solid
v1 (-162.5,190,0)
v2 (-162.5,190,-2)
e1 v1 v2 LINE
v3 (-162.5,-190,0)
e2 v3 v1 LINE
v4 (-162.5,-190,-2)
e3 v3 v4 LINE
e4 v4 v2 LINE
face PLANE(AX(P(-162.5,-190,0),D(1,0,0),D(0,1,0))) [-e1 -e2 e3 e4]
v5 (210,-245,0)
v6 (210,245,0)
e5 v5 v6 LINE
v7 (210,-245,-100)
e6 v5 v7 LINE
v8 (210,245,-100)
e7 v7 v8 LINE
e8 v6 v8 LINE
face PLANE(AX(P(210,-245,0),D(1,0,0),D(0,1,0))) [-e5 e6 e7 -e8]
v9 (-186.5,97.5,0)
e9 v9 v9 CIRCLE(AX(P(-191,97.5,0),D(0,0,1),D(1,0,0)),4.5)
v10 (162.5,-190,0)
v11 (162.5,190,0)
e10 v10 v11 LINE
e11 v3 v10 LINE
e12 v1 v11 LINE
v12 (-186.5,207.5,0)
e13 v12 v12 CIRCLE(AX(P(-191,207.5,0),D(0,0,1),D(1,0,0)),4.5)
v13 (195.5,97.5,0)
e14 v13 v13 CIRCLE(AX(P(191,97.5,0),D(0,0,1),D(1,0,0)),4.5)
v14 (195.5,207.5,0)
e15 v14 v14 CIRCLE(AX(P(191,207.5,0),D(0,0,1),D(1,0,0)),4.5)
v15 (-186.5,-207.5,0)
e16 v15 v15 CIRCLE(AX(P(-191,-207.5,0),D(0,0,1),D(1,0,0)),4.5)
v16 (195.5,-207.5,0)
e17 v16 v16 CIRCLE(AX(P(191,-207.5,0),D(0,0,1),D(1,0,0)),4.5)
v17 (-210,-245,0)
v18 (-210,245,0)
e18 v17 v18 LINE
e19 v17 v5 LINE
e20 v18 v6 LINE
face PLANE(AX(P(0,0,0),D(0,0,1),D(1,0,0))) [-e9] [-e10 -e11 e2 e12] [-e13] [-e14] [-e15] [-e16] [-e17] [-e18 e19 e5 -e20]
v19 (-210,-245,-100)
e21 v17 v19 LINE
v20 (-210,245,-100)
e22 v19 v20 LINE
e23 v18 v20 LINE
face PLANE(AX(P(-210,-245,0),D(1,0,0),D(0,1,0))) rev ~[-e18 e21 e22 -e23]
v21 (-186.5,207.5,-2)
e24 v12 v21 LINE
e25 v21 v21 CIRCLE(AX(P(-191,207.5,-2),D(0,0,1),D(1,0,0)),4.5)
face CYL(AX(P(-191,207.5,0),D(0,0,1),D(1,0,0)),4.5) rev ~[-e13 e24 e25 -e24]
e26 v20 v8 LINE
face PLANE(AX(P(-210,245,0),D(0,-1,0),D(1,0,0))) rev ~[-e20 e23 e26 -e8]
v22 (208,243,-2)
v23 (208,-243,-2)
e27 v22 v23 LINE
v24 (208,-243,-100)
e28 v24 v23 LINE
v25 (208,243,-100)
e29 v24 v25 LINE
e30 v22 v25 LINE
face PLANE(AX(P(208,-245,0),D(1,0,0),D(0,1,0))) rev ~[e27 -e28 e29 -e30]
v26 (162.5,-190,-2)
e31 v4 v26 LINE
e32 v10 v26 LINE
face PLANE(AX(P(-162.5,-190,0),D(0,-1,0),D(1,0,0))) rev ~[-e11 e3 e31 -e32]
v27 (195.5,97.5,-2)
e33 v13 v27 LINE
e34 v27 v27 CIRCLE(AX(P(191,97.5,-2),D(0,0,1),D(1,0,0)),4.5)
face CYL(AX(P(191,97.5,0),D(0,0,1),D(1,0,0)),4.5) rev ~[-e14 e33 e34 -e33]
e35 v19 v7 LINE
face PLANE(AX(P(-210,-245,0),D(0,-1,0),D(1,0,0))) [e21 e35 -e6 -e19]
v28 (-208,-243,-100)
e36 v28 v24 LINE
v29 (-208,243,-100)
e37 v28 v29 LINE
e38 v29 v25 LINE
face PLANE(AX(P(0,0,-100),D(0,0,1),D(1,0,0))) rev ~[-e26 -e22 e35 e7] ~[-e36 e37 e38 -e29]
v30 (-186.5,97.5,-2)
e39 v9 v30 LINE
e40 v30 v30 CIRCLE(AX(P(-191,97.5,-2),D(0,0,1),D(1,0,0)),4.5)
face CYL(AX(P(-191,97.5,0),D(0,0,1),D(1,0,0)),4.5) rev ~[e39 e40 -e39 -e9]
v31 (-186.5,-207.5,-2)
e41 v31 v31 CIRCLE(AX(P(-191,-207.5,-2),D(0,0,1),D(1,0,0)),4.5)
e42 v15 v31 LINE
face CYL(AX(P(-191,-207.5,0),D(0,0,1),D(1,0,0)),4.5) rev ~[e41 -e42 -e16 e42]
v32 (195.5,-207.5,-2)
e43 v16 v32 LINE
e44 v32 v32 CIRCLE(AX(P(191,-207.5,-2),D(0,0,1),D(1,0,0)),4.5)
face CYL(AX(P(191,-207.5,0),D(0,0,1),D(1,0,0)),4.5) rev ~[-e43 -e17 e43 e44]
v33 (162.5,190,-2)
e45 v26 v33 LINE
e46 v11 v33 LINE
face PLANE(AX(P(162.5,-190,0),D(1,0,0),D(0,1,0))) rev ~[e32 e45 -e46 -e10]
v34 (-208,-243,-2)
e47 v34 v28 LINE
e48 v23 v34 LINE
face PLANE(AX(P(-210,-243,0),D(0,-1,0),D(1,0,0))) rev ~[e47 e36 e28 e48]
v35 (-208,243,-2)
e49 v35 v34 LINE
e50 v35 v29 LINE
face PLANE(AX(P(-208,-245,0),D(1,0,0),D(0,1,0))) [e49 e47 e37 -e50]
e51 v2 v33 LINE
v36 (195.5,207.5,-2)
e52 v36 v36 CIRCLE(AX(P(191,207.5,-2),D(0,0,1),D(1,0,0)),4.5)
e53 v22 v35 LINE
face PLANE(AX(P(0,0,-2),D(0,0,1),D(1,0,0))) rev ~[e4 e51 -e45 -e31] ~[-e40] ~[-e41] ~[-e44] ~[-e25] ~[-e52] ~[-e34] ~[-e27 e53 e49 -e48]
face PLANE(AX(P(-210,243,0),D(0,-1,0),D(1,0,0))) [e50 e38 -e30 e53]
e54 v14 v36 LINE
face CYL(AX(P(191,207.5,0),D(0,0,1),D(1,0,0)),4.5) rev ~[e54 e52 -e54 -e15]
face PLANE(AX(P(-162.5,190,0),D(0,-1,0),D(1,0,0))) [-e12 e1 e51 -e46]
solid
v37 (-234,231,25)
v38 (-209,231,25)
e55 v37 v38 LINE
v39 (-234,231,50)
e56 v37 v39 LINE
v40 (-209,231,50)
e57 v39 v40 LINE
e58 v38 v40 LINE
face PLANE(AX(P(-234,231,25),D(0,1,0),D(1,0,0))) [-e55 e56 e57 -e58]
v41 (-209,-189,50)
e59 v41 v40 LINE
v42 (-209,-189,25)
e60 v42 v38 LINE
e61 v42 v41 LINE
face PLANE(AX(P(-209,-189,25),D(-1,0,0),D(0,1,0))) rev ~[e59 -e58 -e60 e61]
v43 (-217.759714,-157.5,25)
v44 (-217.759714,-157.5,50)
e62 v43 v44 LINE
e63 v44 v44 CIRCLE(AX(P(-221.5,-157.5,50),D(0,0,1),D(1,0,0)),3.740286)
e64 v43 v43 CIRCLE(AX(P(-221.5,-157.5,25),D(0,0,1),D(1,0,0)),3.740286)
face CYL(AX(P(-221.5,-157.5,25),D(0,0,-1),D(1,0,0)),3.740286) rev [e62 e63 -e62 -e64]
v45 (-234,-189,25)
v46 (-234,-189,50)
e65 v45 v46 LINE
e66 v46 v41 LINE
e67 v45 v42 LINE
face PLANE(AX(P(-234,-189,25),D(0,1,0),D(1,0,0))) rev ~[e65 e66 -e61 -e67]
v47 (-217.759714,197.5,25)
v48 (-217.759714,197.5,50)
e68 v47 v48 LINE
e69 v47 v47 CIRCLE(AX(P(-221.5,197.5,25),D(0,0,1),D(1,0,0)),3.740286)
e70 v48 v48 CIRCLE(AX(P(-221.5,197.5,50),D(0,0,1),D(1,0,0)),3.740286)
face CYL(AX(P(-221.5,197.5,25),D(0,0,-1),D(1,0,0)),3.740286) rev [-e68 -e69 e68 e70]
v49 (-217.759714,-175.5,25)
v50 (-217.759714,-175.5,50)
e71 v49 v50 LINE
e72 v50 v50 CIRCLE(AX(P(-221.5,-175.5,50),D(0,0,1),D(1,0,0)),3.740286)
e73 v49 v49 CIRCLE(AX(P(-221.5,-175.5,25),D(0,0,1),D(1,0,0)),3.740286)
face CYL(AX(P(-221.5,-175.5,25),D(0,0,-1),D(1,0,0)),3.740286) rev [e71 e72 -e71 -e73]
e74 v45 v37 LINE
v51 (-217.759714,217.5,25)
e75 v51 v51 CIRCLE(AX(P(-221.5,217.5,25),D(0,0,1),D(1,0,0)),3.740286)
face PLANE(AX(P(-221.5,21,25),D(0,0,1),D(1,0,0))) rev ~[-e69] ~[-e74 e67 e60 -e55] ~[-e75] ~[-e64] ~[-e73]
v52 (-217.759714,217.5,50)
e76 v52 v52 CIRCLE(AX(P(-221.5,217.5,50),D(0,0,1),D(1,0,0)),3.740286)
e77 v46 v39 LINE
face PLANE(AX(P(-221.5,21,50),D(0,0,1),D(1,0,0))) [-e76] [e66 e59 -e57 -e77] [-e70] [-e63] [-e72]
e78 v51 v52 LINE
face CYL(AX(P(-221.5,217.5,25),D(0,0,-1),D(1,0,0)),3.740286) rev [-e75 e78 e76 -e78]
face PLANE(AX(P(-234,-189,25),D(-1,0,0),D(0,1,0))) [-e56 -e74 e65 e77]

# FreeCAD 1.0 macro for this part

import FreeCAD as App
import Part
import Sketcher
Q = App.Units.Quantity


def faces_at(feature, points):
    """Names of the faces that lie closest to the given points."""
    faces = feature.Shape.Faces
    near = lambda p: min(range(len(faces)), key=lambda i: faces[i].distToShape(Part.Vertex(*p))[0])
    return sorted({f"Face{near(p) + 1}" for p in points})

doc = App.newDocument("Part")
params = doc.addObject("Spreadsheet::Sheet", "Params")
for row, (alias, value) in enumerate([
    ("sketch1_width", "420 mm"),
    ("sketch1_height", "490 mm"),
    ("pad1_length", "100 mm"),
    ("thickness_wall", "2 mm"),
    ("sketch2_width", "325 mm"),
    ("sketch2_height", "380 mm"),
    ("pocket1_length", "25 mm"),
    ("sketch3_diameter", "9 mm"),
    ("pocket2_length", "25 mm"),
    ("sketch4_width", "25 mm"),
    ("sketch4_height", "420 mm"),
    ("pad2_length", "25 mm"),
    ("pocket3_length", "25 mm"),
], start=1):
    params.set(f"A{row}", alias)
    params.set(f"B{row}", "=" + value)
    params.setAlias(f"B{row}", alias)

body = doc.addObject("PartDesign::Body", "Body")

sketch1 = body.newObject("Sketcher::SketchObject", "Sketch")
sketch1.AttachmentSupport = (doc.getObject("XY_Plane"), [""])
sketch1.MapMode = "FlatFace"
sketch1.addGeometry([
    Part.LineSegment(App.Vector(-210, 245, 0), App.Vector(-210, -245, 0)),
    Part.LineSegment(App.Vector(-210, -245, 0), App.Vector(210, -245, 0)),
    Part.LineSegment(App.Vector(210, -245, 0), App.Vector(210, 245, 0)),
    Part.LineSegment(App.Vector(210, 245, 0), App.Vector(-210, 245, 0)),
], False)
sketch1.addConstraint([
    Sketcher.Constraint("Coincident", 0, 2, 1, 1),
    Sketcher.Constraint("Coincident", 1, 2, 2, 1),
    Sketcher.Constraint("Coincident", 2, 2, 3, 1),
    Sketcher.Constraint("Coincident", 3, 2, 0, 1),
    Sketcher.Constraint("Vertical", 0),
    Sketcher.Constraint("Horizontal", 1),
    Sketcher.Constraint("Vertical", 2),
    Sketcher.Constraint("Horizontal", 3),
    Sketcher.Constraint("Symmetric", 0, 2, 2, 2, -1, 1),
    Sketcher.Constraint("DistanceX", 1, 1, 1, 2, Q("420 mm")),
    Sketcher.Constraint("DistanceY", 0, 2, 0, 1, Q("490 mm")),
])
sketch1.setExpression("Constraints[9]", "Params.sketch1_width")
sketch1.setExpression("Constraints[10]", "Params.sketch1_height")
pad1 = body.newObject("PartDesign::Pad", "Pad")
pad1.Profile = sketch1
pad1.setExpression("Length", "Params.pad1_length")
pad1.Reversed = True
doc.recompute()

thickness = body.newObject("PartDesign::Thickness", "Thickness")
thickness.Base = (pad1, faces_at(pad1, [(0, 0, -100)]))
thickness.setExpression("Value", "Params.thickness_wall")
thickness.Reversed = True
thickness.Join = "Arc"

sketch2 = body.newObject("Sketcher::SketchObject", "Sketch001")
sketch2.AttachmentSupport = (doc.getObject("XY_Plane"), [""])
sketch2.MapMode = "FlatFace"
sketch2.addGeometry([
    Part.LineSegment(App.Vector(-162, 190, 0), App.Vector(-162, -190, 0)),
    Part.LineSegment(App.Vector(-162, -190, 0), App.Vector(162, -190, 0)),
    Part.LineSegment(App.Vector(162, -190, 0), App.Vector(162, 190, 0)),
    Part.LineSegment(App.Vector(162, 190, 0), App.Vector(-162, 190, 0)),
], False)
sketch2.addConstraint([
    Sketcher.Constraint("Coincident", 0, 2, 1, 1),
    Sketcher.Constraint("Coincident", 1, 2, 2, 1),
    Sketcher.Constraint("Coincident", 2, 2, 3, 1),
    Sketcher.Constraint("Coincident", 3, 2, 0, 1),
    Sketcher.Constraint("Vertical", 0),
    Sketcher.Constraint("Horizontal", 1),
    Sketcher.Constraint("Vertical", 2),
    Sketcher.Constraint("Horizontal", 3),
    Sketcher.Constraint("Symmetric", 0, 2, 2, 2, -1, 1),
    Sketcher.Constraint("DistanceX", 1, 1, 1, 2, Q("325 mm")),
    Sketcher.Constraint("DistanceY", 0, 2, 0, 1, Q("380 mm")),
])
sketch2.setExpression("Constraints[9]", "Params.sketch2_width")
sketch2.setExpression("Constraints[10]", "Params.sketch2_height")
pocket1 = body.newObject("PartDesign::Pocket", "Pocket")
pocket1.Profile = sketch2
pocket1.setExpression("Length", "Params.pocket1_length")

sketch3 = body.newObject("Sketcher::SketchObject", "Sketch002")
sketch3.AttachmentSupport = (doc.getObject("XY_Plane"), [""])
sketch3.MapMode = "FlatFace"
sketch3.addGeometry([
    Part.Circle(App.Vector(-191, -207.5, 0), App.Vector(0, 0, 1), 4.5),
    Part.Circle(App.Vector(-191, 97.5, 0), App.Vector(0, 0, 1), 4.5),
    Part.Circle(App.Vector(-191, 207.5, 0), App.Vector(0, 0, 1), 4.5),
    Part.Circle(App.Vector(191, 207.5, 0), App.Vector(0, 0, 1), 4.5),
    Part.Circle(App.Vector(191, -207.5, 0), App.Vector(0, 0, 1), 4.5),
    Part.Circle(App.Vector(191, 97.5, 0), App.Vector(0, 0, 1), 4.5),
], False)
sketch3.addConstraint([
    Sketcher.Constraint("Equal", 0, 1),
    Sketcher.Constraint("Equal", 1, 2),
    Sketcher.Constraint("Equal", 2, 3),
    Sketcher.Constraint("Equal", 3, 4),
    Sketcher.Constraint("Equal", 4, 5),
    Sketcher.Constraint("Symmetric", 0, 3, 3, 3, -1, 1),
    Sketcher.Constraint("Symmetric", 2, 3, 4, 3, -1, 1),
    Sketcher.Constraint("Symmetric", 2, 3, 3, 3, -2),
    Sketcher.Constraint("Symmetric", 1, 3, 5, 3, -2),
    Sketcher.Constraint("Vertical", 0, 3, 1, 3),
    Sketcher.Constraint("Diameter", 0, Q("9 mm")),
    Sketcher.Constraint("DistanceX", 0, 3, -1, 1, Q("191 mm")),
    Sketcher.Constraint("DistanceY", 0, 3, 1, 3, Q("305 mm")),
    Sketcher.Constraint("DistanceY", 1, 3, 2, 3, Q("110 mm")),
])
sketch3.setExpression("Constraints[10]", "Params.sketch3_diameter")
pocket2 = body.newObject("PartDesign::Pocket", "Pocket001")
pocket2.Profile = sketch3
pocket2.setExpression("Length", "Params.pocket2_length")
body2 = doc.addObject("PartDesign::Body", "Body001")

sketch4 = body2.newObject("Sketcher::SketchObject", "Sketch003")
sketch4.AttachmentSupport = (doc.getObject("XY_Plane001"), [""])
sketch4.MapMode = "FlatFace"
sketch4.AttachmentOffset = App.Placement(App.Vector(0, 0, 25), App.Rotation())
sketch4.addGeometry([
    Part.LineSegment(App.Vector(-234, 231, 0), App.Vector(-234, -189, 0)),
    Part.LineSegment(App.Vector(-234, -189, 0), App.Vector(-209, -189, 0)),
    Part.LineSegment(App.Vector(-209, -189, 0), App.Vector(-209, 231, 0)),
    Part.LineSegment(App.Vector(-209, 231, 0), App.Vector(-234, 231, 0)),
], False)
sketch4.addConstraint([
    Sketcher.Constraint("Coincident", 0, 2, 1, 1),
    Sketcher.Constraint("Coincident", 1, 2, 2, 1),
    Sketcher.Constraint("Coincident", 2, 2, 3, 1),
    Sketcher.Constraint("Coincident", 3, 2, 0, 1),
    Sketcher.Constraint("Vertical", 0),
    Sketcher.Constraint("Horizontal", 1),
    Sketcher.Constraint("Vertical", 2),
    Sketcher.Constraint("Horizontal", 3),
    Sketcher.Constraint("DistanceX", 1, 1, 1, 2, Q("25 mm")),
    Sketcher.Constraint("DistanceY", 0, 2, 0, 1, Q("420 mm")),
    Sketcher.Constraint("DistanceX", 0, 2, -1, 1, Q("234 mm")),
    Sketcher.Constraint("DistanceY", 0, 2, -1, 1, Q("189 mm")),
])
sketch4.setExpression("Constraints[8]", "Params.sketch4_width")
sketch4.setExpression("Constraints[9]", "Params.sketch4_height")
pad2 = body2.newObject("PartDesign::Pad", "Pad001")
pad2.Profile = sketch4
pad2.setExpression("Length", "Params.pad2_length")

sketch5 = body2.newObject("Sketcher::SketchObject", "Sketch004")
sketch5.AttachmentSupport = (doc.getObject("XY_Plane001"), [""])
sketch5.MapMode = "FlatFace"
sketch5.AttachmentOffset = App.Placement(App.Vector(0, 0, 25), App.Rotation())
sketch5.addGeometry([
    Part.Circle(App.Vector(-221.5, 217.5, 0), App.Vector(0, 0, 1), 3.7),
    Part.Circle(App.Vector(-221.5, 197.5, 0), App.Vector(0, 0, 1), 3.7),
    Part.Circle(App.Vector(-221.5, -175.5, 0), App.Vector(0, 0, 1), 3.7),
    Part.Circle(App.Vector(-221.5, -157.5, 0), App.Vector(0, 0, 1), 3.7),
], False)
sketch5.addConstraint([
    Sketcher.Constraint("Equal", 0, 1),
    Sketcher.Constraint("Equal", 1, 2),
    Sketcher.Constraint("Equal", 2, 3),
    Sketcher.Constraint("Vertical", 0, 3, 1, 3),
    Sketcher.Constraint("Vertical", 1, 3, 2, 3),
    Sketcher.Constraint("Vertical", 2, 3, 3, 3),
    Sketcher.Constraint("DistanceY", 1, 3, 0, 3, Q("20 mm")),
    Sketcher.Constraint("DistanceY", 2, 3, 1, 3, Q("373 mm")),
    Sketcher.Constraint("DistanceY", 2, 3, 3, 3, Q("18 mm")),
    Sketcher.Constraint("DistanceX", 0, 3, -1, 1, Q("221.5 mm")),
    Sketcher.Constraint("DistanceY", -1, 1, 0, 3, Q("217.5 mm")),
    Sketcher.Constraint("Diameter", 0, Q("7.480572 mm")),
])
pocket3 = body2.newObject("PartDesign::Pocket", "Pocket002")
pocket3.Profile = sketch5
pocket3.setExpression("Length", "Params.pocket3_length")
pocket3.Reversed = True

doc.recompute()
